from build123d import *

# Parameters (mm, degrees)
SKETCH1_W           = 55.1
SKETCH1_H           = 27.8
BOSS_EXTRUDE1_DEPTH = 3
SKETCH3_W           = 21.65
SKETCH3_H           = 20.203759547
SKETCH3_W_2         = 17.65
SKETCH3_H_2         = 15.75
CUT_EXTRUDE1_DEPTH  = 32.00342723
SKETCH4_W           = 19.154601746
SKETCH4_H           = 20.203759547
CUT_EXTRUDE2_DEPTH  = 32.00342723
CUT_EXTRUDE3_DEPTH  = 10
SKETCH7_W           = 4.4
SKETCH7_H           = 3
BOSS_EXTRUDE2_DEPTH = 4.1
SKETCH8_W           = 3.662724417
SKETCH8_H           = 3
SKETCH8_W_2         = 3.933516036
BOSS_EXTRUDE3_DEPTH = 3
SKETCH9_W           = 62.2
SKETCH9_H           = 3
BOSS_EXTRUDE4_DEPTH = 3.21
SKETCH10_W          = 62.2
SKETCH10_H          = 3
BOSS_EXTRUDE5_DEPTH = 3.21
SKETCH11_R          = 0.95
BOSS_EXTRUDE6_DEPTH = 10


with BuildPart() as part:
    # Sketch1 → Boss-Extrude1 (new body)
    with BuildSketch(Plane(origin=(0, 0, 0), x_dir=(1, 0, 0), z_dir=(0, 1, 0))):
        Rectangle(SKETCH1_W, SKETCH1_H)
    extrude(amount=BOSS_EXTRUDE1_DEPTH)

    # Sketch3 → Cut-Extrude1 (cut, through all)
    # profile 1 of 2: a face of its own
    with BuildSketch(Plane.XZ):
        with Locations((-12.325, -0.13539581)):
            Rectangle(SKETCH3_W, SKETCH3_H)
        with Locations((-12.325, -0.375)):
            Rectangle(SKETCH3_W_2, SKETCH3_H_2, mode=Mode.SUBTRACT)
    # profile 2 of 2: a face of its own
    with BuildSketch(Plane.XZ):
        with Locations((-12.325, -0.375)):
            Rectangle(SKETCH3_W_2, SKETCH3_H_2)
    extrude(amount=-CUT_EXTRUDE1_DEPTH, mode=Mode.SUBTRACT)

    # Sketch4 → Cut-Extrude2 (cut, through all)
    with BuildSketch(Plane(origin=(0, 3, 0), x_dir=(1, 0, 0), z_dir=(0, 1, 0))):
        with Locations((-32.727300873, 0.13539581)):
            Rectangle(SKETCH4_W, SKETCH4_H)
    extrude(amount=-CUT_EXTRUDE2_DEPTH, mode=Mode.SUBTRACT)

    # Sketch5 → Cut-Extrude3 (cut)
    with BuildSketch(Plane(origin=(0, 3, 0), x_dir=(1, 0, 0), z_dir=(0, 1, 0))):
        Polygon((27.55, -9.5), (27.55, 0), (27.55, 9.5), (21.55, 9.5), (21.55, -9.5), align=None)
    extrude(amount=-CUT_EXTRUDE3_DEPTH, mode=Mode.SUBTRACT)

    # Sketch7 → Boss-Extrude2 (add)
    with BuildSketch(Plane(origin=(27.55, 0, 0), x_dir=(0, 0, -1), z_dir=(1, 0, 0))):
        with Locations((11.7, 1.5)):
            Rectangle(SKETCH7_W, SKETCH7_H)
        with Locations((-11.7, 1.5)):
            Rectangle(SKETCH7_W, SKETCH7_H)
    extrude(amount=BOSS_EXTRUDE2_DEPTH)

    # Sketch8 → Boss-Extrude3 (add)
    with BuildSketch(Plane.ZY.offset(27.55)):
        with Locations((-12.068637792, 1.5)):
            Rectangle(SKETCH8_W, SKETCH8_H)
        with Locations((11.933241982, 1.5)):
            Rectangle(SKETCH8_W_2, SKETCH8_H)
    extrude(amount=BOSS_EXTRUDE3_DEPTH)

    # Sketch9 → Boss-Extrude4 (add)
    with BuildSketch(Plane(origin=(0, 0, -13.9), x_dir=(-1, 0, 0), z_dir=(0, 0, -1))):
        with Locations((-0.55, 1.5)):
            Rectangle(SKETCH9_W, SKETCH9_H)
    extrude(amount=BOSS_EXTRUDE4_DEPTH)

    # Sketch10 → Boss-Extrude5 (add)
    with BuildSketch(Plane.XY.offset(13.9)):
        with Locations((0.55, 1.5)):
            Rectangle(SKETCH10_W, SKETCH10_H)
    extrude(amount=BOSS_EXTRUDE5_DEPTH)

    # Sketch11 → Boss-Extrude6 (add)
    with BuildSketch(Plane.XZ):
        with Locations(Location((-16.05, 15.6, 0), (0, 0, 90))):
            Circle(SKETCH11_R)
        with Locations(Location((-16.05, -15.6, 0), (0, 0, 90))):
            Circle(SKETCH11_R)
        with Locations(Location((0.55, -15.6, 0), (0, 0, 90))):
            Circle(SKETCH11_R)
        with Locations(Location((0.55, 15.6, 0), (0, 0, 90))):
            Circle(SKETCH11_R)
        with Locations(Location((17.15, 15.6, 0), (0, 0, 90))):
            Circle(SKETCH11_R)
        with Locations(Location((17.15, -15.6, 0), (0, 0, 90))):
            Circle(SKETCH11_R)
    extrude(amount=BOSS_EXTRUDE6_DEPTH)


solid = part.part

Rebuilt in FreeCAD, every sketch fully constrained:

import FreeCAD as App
import Part
import Sketcher
from FreeCAD import Vector
Q = App.Units.Quantity


def add_polygon(sketch, points):
    """Adds a closed chain of lines whose ends are joined by coincident constraints."""
    first, n = sketch.GeometryCount, len(points)
    for a, b in zip(points, points[1:] + points[:1]):
        sketch.addGeometry(Part.LineSegment(App.Vector(*a, 0), App.Vector(*b, 0)), False)
    for i in range(n):
        sketch.addConstraint(Sketcher.Constraint("Coincident", first + i, 2, first + (i + 1) % n, 1))

doc = App.newDocument("Part")
body = doc.addObject("PartDesign::Body", "Body")

sketch1 = body.newObject("Sketcher::SketchObject", "Sketch")
sketch1.AttachmentSupport = (doc.getObject("XZ_Plane"), [""])
sketch1.MapMode = "FlatFace"
add_polygon(sketch1, [(-28, -14), (-28, 14), (28, 14), (28, -14)])
sketch1.addConstraint(Sketcher.Constraint("Vertical", 0))
sketch1.addConstraint(Sketcher.Constraint("Horizontal", 1))
sketch1.addConstraint(Sketcher.Constraint("Vertical", 2))
sketch1.addConstraint(Sketcher.Constraint("Horizontal", 3))
sketch1.addConstraint(Sketcher.Constraint("Symmetric", 0, 2, 2, 2, -1, 1))
sketch1.addConstraint(Sketcher.Constraint("DistanceX", 1, 1, 1, 2, Q("55.1 mm")))
sketch1.addConstraint(Sketcher.Constraint("DistanceY", 0, 1, 0, 2, Q("27.8 mm")))
pad1 = body.newObject("PartDesign::Pad", "Pad")
pad1.Profile = sketch1
pad1.Length = 3
pad1.Reversed = True

sketch2 = body.newObject("Sketcher::SketchObject", "Sketch001")
sketch2.AttachmentSupport = (doc.getObject("XZ_Plane"), [""])
sketch2.MapMode = "FlatFace"
add_polygon(sketch2, [(-23, 10), (-23, -10), (-2, -10), (-2, 10)])
sketch2.addConstraint(Sketcher.Constraint("Vertical", 0))
sketch2.addConstraint(Sketcher.Constraint("Horizontal", 1))
sketch2.addConstraint(Sketcher.Constraint("Vertical", 2))
sketch2.addConstraint(Sketcher.Constraint("Horizontal", 3))
sketch2.addConstraint(Sketcher.Constraint("DistanceX", 1, 1, 1, 2, Q("21.65 mm")))
sketch2.addConstraint(Sketcher.Constraint("DistanceX", 1, 2, -1, 1, Q("1.5 mm")))
sketch2.addConstraint(Sketcher.Constraint("DistanceY", 0, 2, 0, 1, Q("20.20376 mm")))
sketch2.addConstraint(Sketcher.Constraint("DistanceY", 0, 2, -1, 1, Q("10.237276 mm")))
pocket1 = body.newObject("PartDesign::Pocket", "Pocket")
pocket1.Profile = sketch2
pocket1.Length = 32.003427

sketch3 = body.newObject("Sketcher::SketchObject", "Sketch002")
sketch3.AttachmentSupport = (doc.getObject("XZ_Plane"), [""])
sketch3.MapMode = "FlatFace"
sketch3.AttachmentOffset = App.Placement(Vector(0, 0, -3), App.Rotation())
add_polygon(sketch3, [(-42, -10), (-42, 10), (-23, 10), (-23, -10)])
sketch3.addConstraint(Sketcher.Constraint("Vertical", 0))
sketch3.addConstraint(Sketcher.Constraint("Horizontal", 1))
sketch3.addConstraint(Sketcher.Constraint("Vertical", 2))
sketch3.addConstraint(Sketcher.Constraint("Horizontal", 3))
sketch3.addConstraint(Sketcher.Constraint("DistanceX", 1, 2, -1, 1, Q("23.15 mm")))
sketch3.addConstraint(Sketcher.Constraint("DistanceX", 1, 1, 1, 2, Q("19.154602 mm")))
sketch3.addConstraint(Sketcher.Constraint("DistanceY", 0, 1, 0, 2, Q("20.20376 mm")))
sketch3.addConstraint(Sketcher.Constraint("DistanceY", -1, 1, 0, 2, Q("9.966484 mm")))
pocket2 = body.newObject("PartDesign::Pocket", "Pocket001")
pocket2.Profile = sketch3
pocket2.Type = "ThroughAll"
pocket2.Reversed = True

sketch4 = body.newObject("Sketcher::SketchObject", "Sketch003")
sketch4.AttachmentSupport = (doc.getObject("XZ_Plane"), [""])
sketch4.MapMode = "FlatFace"
sketch4.AttachmentOffset = App.Placement(Vector(0, 0, -3), App.Rotation())
add_polygon(sketch4, [(28, 10), (28, -10), (22, -10), (22, 10)])
sketch4.addConstraint(Sketcher.Constraint("Vertical", 0))
sketch4.addConstraint(Sketcher.Constraint("Horizontal", 1))
sketch4.addConstraint(Sketcher.Constraint("Vertical", 2))
sketch4.addConstraint(Sketcher.Constraint("Horizontal", 3))
sketch4.addConstraint(Sketcher.Constraint("DistanceX", 1, 2, 1, 1, Q("6 mm")))
sketch4.addConstraint(Sketcher.Constraint("DistanceY", 0, 2, 0, 1, Q("19 mm")))
sketch4.addConstraint(Sketcher.Constraint("DistanceY", 0, 2, -1, 1, Q("9.5 mm")))
sketch4.addConstraint(Sketcher.Constraint("DistanceX", -1, 1, 0, 2, Q("27.55 mm")))
pocket3 = body.newObject("PartDesign::Pocket", "Pocket002")
pocket3.Profile = sketch4
pocket3.Length = 10
pocket3.Reversed = True

sketch5 = body.newObject("Sketcher::SketchObject", "Sketch004")
sketch5.AttachmentSupport = (doc.getObject("YZ_Plane"), [""])
sketch5.MapMode = "FlatFace"
sketch5.AttachmentOffset = App.Placement(Vector(0, 0, 27.55), App.Rotation())
add_polygon(sketch5, [(3, -9.5), (0, -9.5), (0, -13.9), (3, -13.9)])
add_polygon(sketch5, [(3, 13.9), (0, 13.9), (0, 9.5), (3, 9.5)])
sketch5.addConstraint(Sketcher.Constraint("Horizontal", 0))
sketch5.addConstraint(Sketcher.Constraint("Vertical", 1))
sketch5.addConstraint(Sketcher.Constraint("Horizontal", 2))
sketch5.addConstraint(Sketcher.Constraint("Vertical", 3))
sketch5.addConstraint(Sketcher.Constraint("Horizontal", 4))
sketch5.addConstraint(Sketcher.Constraint("Vertical", 5))
sketch5.addConstraint(Sketcher.Constraint("Horizontal", 6))
sketch5.addConstraint(Sketcher.Constraint("Vertical", 7))
sketch5.addConstraint(Sketcher.Constraint("Symmetric", 1, 2, 4, 2, -1, 1))
sketch5.addConstraint(Sketcher.Constraint("Symmetric", 0, 2, 5, 2, -1))
sketch5.addConstraint(Sketcher.Constraint("Vertical", 3, 2, 6, 2))
sketch5.addConstraint(Sketcher.Constraint("DistanceX", 0, 2, 0, 1, Q("3 mm")))
sketch5.addConstraint(Sketcher.Constraint("DistanceY", 1, 2, 1, 1, Q("4.4 mm")))
sketch5.addConstraint(Sketcher.Constraint("DistanceY", 0, 2, 5, 2, Q("19 mm")))
pad2 = body.newObject("PartDesign::Pad", "Pad001")
pad2.Profile = sketch5
pad2.Length = 4.1

sketch6 = body.newObject("Sketcher::SketchObject", "Sketch005")
sketch6.AttachmentSupport = (doc.getObject("YZ_Plane"), [""])
sketch6.MapMode = "FlatFace"
sketch6.AttachmentOffset = App.Placement(Vector(0, 0, -27.55), App.Rotation())
add_polygon(sketch6, [(3, -13.9), (0, -13.9), (0, -10.2), (3, -10.2)])
add_polygon(sketch6, [(3, 10), (0, 10), (0, 13.9), (3, 13.9)])
sketch6.addConstraint(Sketcher.Constraint("Horizontal", 0))
sketch6.addConstraint(Sketcher.Constraint("Vertical", 1))
sketch6.addConstraint(Sketcher.Constraint("Horizontal", 2))
sketch6.addConstraint(Sketcher.Constraint("Vertical", 3))
sketch6.addConstraint(Sketcher.Constraint("Horizontal", 4))
sketch6.addConstraint(Sketcher.Constraint("Vertical", 5))
sketch6.addConstraint(Sketcher.Constraint("Horizontal", 6))
sketch6.addConstraint(Sketcher.Constraint("Vertical", 7))
sketch6.addConstraint(Sketcher.Constraint("Symmetric", 0, 2, 5, 2, -1, 1))
sketch6.addConstraint(Sketcher.Constraint("PointOnObject", 0, 2, -2))
sketch6.addConstraint(Sketcher.Constraint("Vertical", 3, 2, 6, 2))
sketch6.addConstraint(Sketcher.Constraint("DistanceX", 0, 2, 0, 1, Q("3 mm")))
sketch6.addConstraint(Sketcher.Constraint("DistanceY", 0, 2, -1, 1, Q("13.9 mm")))
sketch6.addConstraint(Sketcher.Constraint("DistanceY", 1, 1, 1, 2, Q("3.662724 mm")))
sketch6.addConstraint(Sketcher.Constraint("DistanceY", 5, 1, 5, 2, Q("3.933516 mm")))
pad3 = body.newObject("PartDesign::Pad", "Pad002")
pad3.Profile = sketch6
pad3.Length = 3
pad3.Reversed = True

sketch7 = body.newObject("Sketcher::SketchObject", "Sketch006")
sketch7.AttachmentSupport = (doc.getObject("XY_Plane"), [""])
sketch7.MapMode = "FlatFace"
sketch7.AttachmentOffset = App.Placement(Vector(0, 0, -13.9), App.Rotation())
add_polygon(sketch7, [(31.6, 3), (31.6, 0), (-30.6, 0), (-30.6, 3)])
sketch7.addConstraint(Sketcher.Constraint("Vertical", 0))
sketch7.addConstraint(Sketcher.Constraint("Horizontal", 1))
sketch7.addConstraint(Sketcher.Constraint("Vertical", 2))
sketch7.addConstraint(Sketcher.Constraint("Horizontal", 3))
sketch7.addConstraint(Sketcher.Constraint("PointOnObject", 0, 2, -1))
sketch7.addConstraint(Sketcher.Constraint("DistanceY", 0, 2, 0, 1, Q("3 mm")))
sketch7.addConstraint(Sketcher.Constraint("DistanceX", 1, 2, 1, 1, Q("62.2 mm")))
sketch7.addConstraint(Sketcher.Constraint("DistanceX", -1, 1, 0, 2, Q("31.65 mm")))
pad4 = body.newObject("PartDesign::Pad", "Pad003")
pad4.Profile = sketch7
pad4.Length = 3.21
pad4.Reversed = True

sketch8 = body.newObject("Sketcher::SketchObject", "Sketch007")
sketch8.AttachmentSupport = (doc.getObject("XY_Plane"), [""])
sketch8.MapMode = "FlatFace"
sketch8.AttachmentOffset = App.Placement(Vector(0, 0, 13.9), App.Rotation())
add_polygon(sketch8, [(-30.6, 3), (-30.6, 0), (31.6, 0), (31.6, 3)])
sketch8.addConstraint(Sketcher.Constraint("Vertical", 0))
sketch8.addConstraint(Sketcher.Constraint("Horizontal", 1))
sketch8.addConstraint(Sketcher.Constraint("Vertical", 2))
sketch8.addConstraint(Sketcher.Constraint("Horizontal", 3))
sketch8.addConstraint(Sketcher.Constraint("PointOnObject", 0, 2, -1))
sketch8.addConstraint(Sketcher.Constraint("DistanceY", 0, 2, 0, 1, Q("3 mm")))
sketch8.addConstraint(Sketcher.Constraint("DistanceX", 1, 1, 1, 2, Q("62.2 mm")))
sketch8.addConstraint(Sketcher.Constraint("DistanceX", 0, 2, -1, 1, Q("30.55 mm")))
pad5 = body.newObject("PartDesign::Pad", "Pad004")
pad5.Profile = sketch8
pad5.Length = 3.21

sketch9 = body.newObject("Sketcher::SketchObject", "Sketch008")
sketch9.AttachmentSupport = (doc.getObject("XZ_Plane"), [""])
sketch9.MapMode = "FlatFace"
sketch9.addGeometry(Part.Circle(Vector(-16.1, 15.6, 0), Vector(0, 0, 1), 0.9), False)
sketch9.addGeometry(Part.Circle(Vector(-16.1, -15.6, 0), Vector(0, 0, 1), 0.9), False)
sketch9.addGeometry(Part.Circle(Vector(0.6, -15.6, 0), Vector(0, 0, 1), 0.9), False)
sketch9.addGeometry(Part.Circle(Vector(0.6, 15.6, 0), Vector(0, 0, 1), 0.9), False)
sketch9.addGeometry(Part.Circle(Vector(17.1, 15.6, 0), Vector(0, 0, 1), 0.9), False)
sketch9.addGeometry(Part.Circle(Vector(17.1, -15.6, 0), Vector(0, 0, 1), 0.9), False)
sketch9.addConstraint(Sketcher.Constraint("Equal", 0, 1))
sketch9.addConstraint(Sketcher.Constraint("Equal", 1, 2))
sketch9.addConstraint(Sketcher.Constraint("Equal", 2, 3))
sketch9.addConstraint(Sketcher.Constraint("Equal", 3, 4))
sketch9.addConstraint(Sketcher.Constraint("Equal", 4, 5))
sketch9.addConstraint(Sketcher.Constraint("Symmetric", 0, 3, 1, 3, -1))
sketch9.addConstraint(Sketcher.Constraint("Symmetric", 2, 3, 3, 3, -1))
sketch9.addConstraint(Sketcher.Constraint("Symmetric", 4, 3, 5, 3, -1))
sketch9.addConstraint(Sketcher.Constraint("Horizontal", 1, 3, 2, 3))
sketch9.addConstraint(Sketcher.Constraint("Horizontal", 3, 3, 4, 3))
sketch9.addConstraint(Sketcher.Constraint("Diameter", 0, Q("1.9 mm")))
sketch9.addConstraint(Sketcher.Constraint("DistanceY", -1, 1, 0, 3, Q("15.6 mm")))
sketch9.addConstraint(Sketcher.Constraint("DistanceX", 1, 3, 2, 3, Q("16.6 mm")))
sketch9.addConstraint(Sketcher.Constraint("DistanceX", 3, 3, 4, 3, Q("16.6 mm")))
sketch9.addConstraint(Sketcher.Constraint("DistanceX", 0, 3, -1, 1, Q("16.05 mm")))
pad6 = body.newObject("PartDesign::Pad", "Pad005")
pad6.Profile = sketch9
pad6.Length = 10

doc.recompute()
